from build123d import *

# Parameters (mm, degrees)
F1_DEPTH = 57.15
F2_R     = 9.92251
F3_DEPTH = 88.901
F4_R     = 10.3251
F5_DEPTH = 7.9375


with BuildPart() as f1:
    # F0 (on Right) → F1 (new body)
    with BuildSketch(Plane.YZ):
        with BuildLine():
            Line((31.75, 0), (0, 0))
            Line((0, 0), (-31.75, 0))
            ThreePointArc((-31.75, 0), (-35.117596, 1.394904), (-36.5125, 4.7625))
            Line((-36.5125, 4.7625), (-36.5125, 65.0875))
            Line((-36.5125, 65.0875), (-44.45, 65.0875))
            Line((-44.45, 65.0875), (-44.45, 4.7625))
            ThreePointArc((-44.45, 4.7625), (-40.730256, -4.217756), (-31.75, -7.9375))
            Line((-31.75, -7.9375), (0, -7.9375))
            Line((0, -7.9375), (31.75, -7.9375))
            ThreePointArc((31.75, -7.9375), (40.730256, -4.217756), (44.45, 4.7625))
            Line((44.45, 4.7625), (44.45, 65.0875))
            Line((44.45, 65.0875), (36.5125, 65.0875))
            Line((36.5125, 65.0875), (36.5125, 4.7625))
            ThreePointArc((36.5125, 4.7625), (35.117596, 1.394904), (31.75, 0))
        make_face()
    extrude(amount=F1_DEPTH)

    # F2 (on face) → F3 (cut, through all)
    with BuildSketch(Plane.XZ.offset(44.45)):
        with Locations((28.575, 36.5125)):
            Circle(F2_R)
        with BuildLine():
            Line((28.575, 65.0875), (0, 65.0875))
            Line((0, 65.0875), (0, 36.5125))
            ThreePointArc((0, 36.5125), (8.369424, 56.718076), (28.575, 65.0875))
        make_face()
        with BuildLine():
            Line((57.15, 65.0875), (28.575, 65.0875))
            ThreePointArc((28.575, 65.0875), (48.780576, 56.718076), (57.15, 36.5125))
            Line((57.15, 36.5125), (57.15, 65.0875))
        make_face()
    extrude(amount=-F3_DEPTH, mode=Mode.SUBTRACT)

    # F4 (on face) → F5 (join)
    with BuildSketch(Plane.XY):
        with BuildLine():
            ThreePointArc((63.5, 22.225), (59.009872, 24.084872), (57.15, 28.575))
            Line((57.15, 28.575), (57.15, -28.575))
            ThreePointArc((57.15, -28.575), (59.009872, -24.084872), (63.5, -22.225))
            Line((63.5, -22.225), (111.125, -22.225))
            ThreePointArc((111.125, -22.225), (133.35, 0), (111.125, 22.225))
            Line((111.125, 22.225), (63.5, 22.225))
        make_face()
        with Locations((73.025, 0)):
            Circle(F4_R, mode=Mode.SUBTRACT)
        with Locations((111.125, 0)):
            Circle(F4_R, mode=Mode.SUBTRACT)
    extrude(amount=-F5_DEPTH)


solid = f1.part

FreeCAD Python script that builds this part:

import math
import FreeCAD as App
import Part
import Sketcher
Q = App.Units.Quantity

doc = App.newDocument("Part")
body = doc.addObject("PartDesign::Body", "Body")

sketch1 = body.newObject("Sketcher::SketchObject", "Sketch")
sketch1.AttachmentSupport = (doc.getObject("YZ_Plane"), [""])
sketch1.MapMode = "FlatFace"
sketch1.addGeometry([
    Part.LineSegment(App.Vector(31.75, 0, 0), App.Vector(-31.75, 0, 0)),
    Part.ArcOfCircle(Part.Circle(App.Vector(-31.75, 4.7625, 0), App.Vector(0, 0, 1), 4.7625), math.radians(-179.999998), math.radians(-90.000002)),
    Part.LineSegment(App.Vector(-36.5125, 4.7625, 0), App.Vector(-36.5125, 65.0875, 0)),
    Part.LineSegment(App.Vector(-36.5125, 65.0875, 0), App.Vector(-44.45, 65.0875, 0)),
    Part.LineSegment(App.Vector(-44.45, 65.0875, 0), App.Vector(-44.45, 4.7625, 0)),
    Part.ArcOfCircle(Part.Circle(App.Vector(-31.75, 4.7625, 0), App.Vector(0, 0, 1), 12.7), math.radians(-179.999998), math.radians(-90.000002)),
    Part.LineSegment(App.Vector(-31.75, -7.9375, 0), App.Vector(31.75, -7.9375, 0)),
    Part.ArcOfCircle(Part.Circle(App.Vector(31.75, 4.7625, 0), App.Vector(0, 0, 1), 12.7), math.radians(-89.999998), math.radians(-0.000002)),
    Part.LineSegment(App.Vector(44.45, 4.7625, 0), App.Vector(44.45, 65.0875, 0)),
    Part.LineSegment(App.Vector(44.45, 65.0875, 0), App.Vector(36.5125, 65.0875, 0)),
    Part.LineSegment(App.Vector(36.5125, 65.0875, 0), App.Vector(36.5125, 4.7625, 0)),
    Part.ArcOfCircle(Part.Circle(App.Vector(31.75, 4.7625, 0), App.Vector(0, 0, 1), 4.7625), math.radians(-89.999998), math.radians(-0.000002)),
], False)
sketch1.addConstraint([
    Sketcher.Constraint("Tangent", 0, 2, 1, 2),
    Sketcher.Constraint("Tangent", 1, 1, 2, 1),
    Sketcher.Constraint("Coincident", 2, 2, 3, 1),
    Sketcher.Constraint("Coincident", 3, 2, 4, 1),
    Sketcher.Constraint("Tangent", 4, 2, 5, 1),
    Sketcher.Constraint("Tangent", 5, 2, 6, 1),
    Sketcher.Constraint("Tangent", 6, 2, 7, 1),
    Sketcher.Constraint("Tangent", 7, 2, 8, 1),
    Sketcher.Constraint("Coincident", 8, 2, 9, 1),
    Sketcher.Constraint("Coincident", 9, 2, 10, 1),
    Sketcher.Constraint("Tangent", 10, 2, 11, 2),
    Sketcher.Constraint("Tangent", 11, 1, 0, 1),
    Sketcher.Constraint("Horizontal", 0),
    Sketcher.Constraint("Vertical", 2),
    Sketcher.Constraint("Horizontal", 3),
    Sketcher.Constraint("Vertical", 4),
    Sketcher.Constraint("Horizontal", 6),
    Sketcher.Constraint("Vertical", 8),
    Sketcher.Constraint("Horizontal", 9),
    Sketcher.Constraint("Vertical", 10),
    Sketcher.Constraint("Coincident", 5, 3, 1, 3),
    Sketcher.Constraint("Coincident", 11, 3, 7, 3),
    Sketcher.Constraint("Equal", 5, 7),
    Sketcher.Constraint("Symmetric", 0, 2, 11, 1, -1, 1),
    Sketcher.Constraint("Horizontal", 3, 2, 8, 2),
    Sketcher.Constraint("Radius", 5, Q("0.5 in")),
    Sketcher.Constraint("DistanceX", 0, 2, 0, 1, Q("2.5 in")),
    Sketcher.Constraint("Radius", 1, Q("0.1875 in")),
    Sketcher.Constraint("DistanceY", 2, 1, 2, 2, Q("2.375 in")),
])
pad1 = body.newObject("PartDesign::Pad", "Pad")
pad1.Profile = sketch1
pad1.Length = Q("2.25 in")

sketch2 = body.newObject("Sketcher::SketchObject", "Sketch001")
sketch2.AttachmentSupport = (doc.getObject("XZ_Plane"), [""])
sketch2.MapMode = "FlatFace"
sketch2.AttachmentOffset = App.Placement(App.Vector(0, 0, 1.75 * 25.4), App.Rotation())
sketch2.addGeometry([
    Part.Circle(App.Vector(28.575, 36.5125, 0), App.Vector(0, 0, 1), 9.92251),
    Part.LineSegment(App.Vector(28.575, 65.0875, 0), App.Vector(0, 65.0875, 0)),
    Part.LineSegment(App.Vector(0, 65.0875, 0), App.Vector(0, 36.5125, 0)),
    Part.ArcOfCircle(Part.Circle(App.Vector(28.575001, 36.512499, 0), App.Vector(0, 0, 1), 28.575001), math.radians(90.000002), math.radians(179.999998)),
    Part.LineSegment(App.Vector(57.15, 65.0875, 0), App.Vector(28.575, 65.0875, 0)),
    Part.ArcOfCircle(Part.Circle(App.Vector(28.574999, 36.512499, 0), App.Vector(0, 0, 1), 28.575001), math.radians(0.000002), math.radians(89.999998)),
    Part.LineSegment(App.Vector(57.15, 36.5125, 0), App.Vector(57.15, 65.0875, 0)),
], False)
sketch2.addConstraint([
    Sketcher.Constraint("Coincident", 1, 2, 2, 1),
    Sketcher.Constraint("Tangent", 2, 2, 3, 2),
    Sketcher.Constraint("Tangent", 3, 1, 1, 1),
    Sketcher.Constraint("Tangent", 4, 2, 5, 2),
    Sketcher.Constraint("Tangent", 5, 1, 6, 1),
    Sketcher.Constraint("Coincident", 6, 2, 4, 1),
    Sketcher.Constraint("Horizontal", 1),
    Sketcher.Constraint("Vertical", 2),
    Sketcher.Constraint("Horizontal", 4),
    Sketcher.Constraint("Vertical", 6),
    Sketcher.Constraint("Coincident", 3, 3, 0, 3),
    Sketcher.Constraint("Coincident", 5, 3, 0, 3),
    Sketcher.Constraint("Equal", 3, 5),
    Sketcher.Constraint("PointOnObject", 1, 2, -2),
    Sketcher.Constraint("Radius", 3, Q("1.125 in")),
    Sketcher.Constraint("Diameter", 0, Q("0.7813 in")),
    Sketcher.Constraint("DistanceY", -1, 1, 0, 3, Q("1.4375 in")),
])
pocket1 = body.newObject("PartDesign::Pocket", "Pocket")
pocket1.Profile = sketch2
pocket1.Type = "ThroughAll"

sketch3 = body.newObject("Sketcher::SketchObject", "Sketch002")
sketch3.AttachmentSupport = (doc.getObject("XY_Plane"), [""])
sketch3.MapMode = "FlatFace"
sketch3.addGeometry([
    Part.ArcOfCircle(Part.Circle(App.Vector(63.5, 28.575, 0), App.Vector(0, 0, 1), 6.35), math.radians(-179.999998), math.radians(-90.000002)),
    Part.LineSegment(App.Vector(57.15, 28.575, 0), App.Vector(57.15, -28.575, 0)),
    Part.ArcOfCircle(Part.Circle(App.Vector(63.5, -28.575, 0), App.Vector(0, 0, 1), 6.35), math.radians(90.000002), math.radians(179.999998)),
    Part.LineSegment(App.Vector(63.5, -22.225, 0), App.Vector(111.125, -22.225, 0)),
    Part.ArcOfCircle(Part.Circle(App.Vector(111.125, 0, 0), App.Vector(0, 0, 1), 22.225), math.radians(-90), math.radians(90)),
    Part.LineSegment(App.Vector(111.125, 22.225, 0), App.Vector(63.5, 22.225, 0)),
    Part.Circle(App.Vector(73.025, 0, 0), App.Vector(0, 0, 1), 10.3251),
    Part.Circle(App.Vector(111.125, 0, 0), App.Vector(0, 0, 1), 10.3251),
], False)
sketch3.addConstraint([
    Sketcher.Constraint("Tangent", 0, 1, 1, 1),
    Sketcher.Constraint("Tangent", 1, 2, 2, 2),
    Sketcher.Constraint("Tangent", 2, 1, 3, 1),
    Sketcher.Constraint("Tangent", 3, 2, 4, 1),
    Sketcher.Constraint("Tangent", 4, 2, 5, 1),
    Sketcher.Constraint("Tangent", 5, 2, 0, 2),
    Sketcher.Constraint("Vertical", 1),
    Sketcher.Constraint("Horizontal", 3),
    Sketcher.Constraint("Horizontal", 5),
    Sketcher.Constraint("Coincident", 7, 3, 4, 3),
    Sketcher.Constraint("Equal", 0, 2),
    Sketcher.Constraint("Equal", 6, 7),
    Sketcher.Constraint("PointOnObject", 4, 3, -1),
    Sketcher.Constraint("PointOnObject", 6, 3, -1),
    Sketcher.Constraint("Radius", 0, Q("0.25 in")),
    Sketcher.Constraint("Diameter", 6, Q("0.813 in")),
    Sketcher.Constraint("Radius", 4, Q("0.875 in")),
    Sketcher.Constraint("DistanceX", -1, 1, 0, 3, Q("2.5 in")),
    Sketcher.Constraint("DistanceX", 6, 3, 4, 3, Q("1.5 in")),
    Sketcher.Constraint("DistanceX", 3, 1, 3, 2, Q("1.875 in")),
])
pad2 = body.newObject("PartDesign::Pad", "Pad001")
pad2.Profile = sketch3
pad2.Length = Q("0.3125 in")
pad2.Reversed = True

doc.recompute()
